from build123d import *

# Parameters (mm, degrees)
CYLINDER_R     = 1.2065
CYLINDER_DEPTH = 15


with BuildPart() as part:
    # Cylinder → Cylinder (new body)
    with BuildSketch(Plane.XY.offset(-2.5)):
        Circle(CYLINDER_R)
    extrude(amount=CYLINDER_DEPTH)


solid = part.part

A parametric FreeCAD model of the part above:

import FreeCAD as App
import Part
import Sketcher

V = App.Vector

doc = App.newDocument("Part")
params = doc.addObject("Spreadsheet::Sheet", "Params")
for row, (alias, value) in enumerate([
    ("pad1_length", "15 mm"),
], start=1):
    params.set(f"A{row}", alias)
    params.set(f"B{row}", "=" + value)
    params.setAlias(f"B{row}", alias)

body = doc.addObject("PartDesign::Body", "Body")

sketch1 = body.newObject("Sketcher::SketchObject", "Sketch")
sketch1.AttachmentSupport = (doc.getObject("XY_Plane"), [""])
sketch1.MapMode = "FlatFace"
sketch1.AttachmentOffset = App.Placement(V(0, 0, -2.5), App.Rotation())
sketch1.addGeometry(Part.Circle(V(0, 0, 0), V(0, 0, 1), 1.2), False)
sketch1.addConstraint([
    Sketcher.Constraint("Coincident", 0, 3, -1, 1),
    Sketcher.Constraint("Diameter", 0, 2.413),
])
pad1 = body.newObject("PartDesign::Pad", "Pad")
pad1.Profile = sketch1
pad1.setExpression("Length", "Params.pad1_length")

doc.recompute()
